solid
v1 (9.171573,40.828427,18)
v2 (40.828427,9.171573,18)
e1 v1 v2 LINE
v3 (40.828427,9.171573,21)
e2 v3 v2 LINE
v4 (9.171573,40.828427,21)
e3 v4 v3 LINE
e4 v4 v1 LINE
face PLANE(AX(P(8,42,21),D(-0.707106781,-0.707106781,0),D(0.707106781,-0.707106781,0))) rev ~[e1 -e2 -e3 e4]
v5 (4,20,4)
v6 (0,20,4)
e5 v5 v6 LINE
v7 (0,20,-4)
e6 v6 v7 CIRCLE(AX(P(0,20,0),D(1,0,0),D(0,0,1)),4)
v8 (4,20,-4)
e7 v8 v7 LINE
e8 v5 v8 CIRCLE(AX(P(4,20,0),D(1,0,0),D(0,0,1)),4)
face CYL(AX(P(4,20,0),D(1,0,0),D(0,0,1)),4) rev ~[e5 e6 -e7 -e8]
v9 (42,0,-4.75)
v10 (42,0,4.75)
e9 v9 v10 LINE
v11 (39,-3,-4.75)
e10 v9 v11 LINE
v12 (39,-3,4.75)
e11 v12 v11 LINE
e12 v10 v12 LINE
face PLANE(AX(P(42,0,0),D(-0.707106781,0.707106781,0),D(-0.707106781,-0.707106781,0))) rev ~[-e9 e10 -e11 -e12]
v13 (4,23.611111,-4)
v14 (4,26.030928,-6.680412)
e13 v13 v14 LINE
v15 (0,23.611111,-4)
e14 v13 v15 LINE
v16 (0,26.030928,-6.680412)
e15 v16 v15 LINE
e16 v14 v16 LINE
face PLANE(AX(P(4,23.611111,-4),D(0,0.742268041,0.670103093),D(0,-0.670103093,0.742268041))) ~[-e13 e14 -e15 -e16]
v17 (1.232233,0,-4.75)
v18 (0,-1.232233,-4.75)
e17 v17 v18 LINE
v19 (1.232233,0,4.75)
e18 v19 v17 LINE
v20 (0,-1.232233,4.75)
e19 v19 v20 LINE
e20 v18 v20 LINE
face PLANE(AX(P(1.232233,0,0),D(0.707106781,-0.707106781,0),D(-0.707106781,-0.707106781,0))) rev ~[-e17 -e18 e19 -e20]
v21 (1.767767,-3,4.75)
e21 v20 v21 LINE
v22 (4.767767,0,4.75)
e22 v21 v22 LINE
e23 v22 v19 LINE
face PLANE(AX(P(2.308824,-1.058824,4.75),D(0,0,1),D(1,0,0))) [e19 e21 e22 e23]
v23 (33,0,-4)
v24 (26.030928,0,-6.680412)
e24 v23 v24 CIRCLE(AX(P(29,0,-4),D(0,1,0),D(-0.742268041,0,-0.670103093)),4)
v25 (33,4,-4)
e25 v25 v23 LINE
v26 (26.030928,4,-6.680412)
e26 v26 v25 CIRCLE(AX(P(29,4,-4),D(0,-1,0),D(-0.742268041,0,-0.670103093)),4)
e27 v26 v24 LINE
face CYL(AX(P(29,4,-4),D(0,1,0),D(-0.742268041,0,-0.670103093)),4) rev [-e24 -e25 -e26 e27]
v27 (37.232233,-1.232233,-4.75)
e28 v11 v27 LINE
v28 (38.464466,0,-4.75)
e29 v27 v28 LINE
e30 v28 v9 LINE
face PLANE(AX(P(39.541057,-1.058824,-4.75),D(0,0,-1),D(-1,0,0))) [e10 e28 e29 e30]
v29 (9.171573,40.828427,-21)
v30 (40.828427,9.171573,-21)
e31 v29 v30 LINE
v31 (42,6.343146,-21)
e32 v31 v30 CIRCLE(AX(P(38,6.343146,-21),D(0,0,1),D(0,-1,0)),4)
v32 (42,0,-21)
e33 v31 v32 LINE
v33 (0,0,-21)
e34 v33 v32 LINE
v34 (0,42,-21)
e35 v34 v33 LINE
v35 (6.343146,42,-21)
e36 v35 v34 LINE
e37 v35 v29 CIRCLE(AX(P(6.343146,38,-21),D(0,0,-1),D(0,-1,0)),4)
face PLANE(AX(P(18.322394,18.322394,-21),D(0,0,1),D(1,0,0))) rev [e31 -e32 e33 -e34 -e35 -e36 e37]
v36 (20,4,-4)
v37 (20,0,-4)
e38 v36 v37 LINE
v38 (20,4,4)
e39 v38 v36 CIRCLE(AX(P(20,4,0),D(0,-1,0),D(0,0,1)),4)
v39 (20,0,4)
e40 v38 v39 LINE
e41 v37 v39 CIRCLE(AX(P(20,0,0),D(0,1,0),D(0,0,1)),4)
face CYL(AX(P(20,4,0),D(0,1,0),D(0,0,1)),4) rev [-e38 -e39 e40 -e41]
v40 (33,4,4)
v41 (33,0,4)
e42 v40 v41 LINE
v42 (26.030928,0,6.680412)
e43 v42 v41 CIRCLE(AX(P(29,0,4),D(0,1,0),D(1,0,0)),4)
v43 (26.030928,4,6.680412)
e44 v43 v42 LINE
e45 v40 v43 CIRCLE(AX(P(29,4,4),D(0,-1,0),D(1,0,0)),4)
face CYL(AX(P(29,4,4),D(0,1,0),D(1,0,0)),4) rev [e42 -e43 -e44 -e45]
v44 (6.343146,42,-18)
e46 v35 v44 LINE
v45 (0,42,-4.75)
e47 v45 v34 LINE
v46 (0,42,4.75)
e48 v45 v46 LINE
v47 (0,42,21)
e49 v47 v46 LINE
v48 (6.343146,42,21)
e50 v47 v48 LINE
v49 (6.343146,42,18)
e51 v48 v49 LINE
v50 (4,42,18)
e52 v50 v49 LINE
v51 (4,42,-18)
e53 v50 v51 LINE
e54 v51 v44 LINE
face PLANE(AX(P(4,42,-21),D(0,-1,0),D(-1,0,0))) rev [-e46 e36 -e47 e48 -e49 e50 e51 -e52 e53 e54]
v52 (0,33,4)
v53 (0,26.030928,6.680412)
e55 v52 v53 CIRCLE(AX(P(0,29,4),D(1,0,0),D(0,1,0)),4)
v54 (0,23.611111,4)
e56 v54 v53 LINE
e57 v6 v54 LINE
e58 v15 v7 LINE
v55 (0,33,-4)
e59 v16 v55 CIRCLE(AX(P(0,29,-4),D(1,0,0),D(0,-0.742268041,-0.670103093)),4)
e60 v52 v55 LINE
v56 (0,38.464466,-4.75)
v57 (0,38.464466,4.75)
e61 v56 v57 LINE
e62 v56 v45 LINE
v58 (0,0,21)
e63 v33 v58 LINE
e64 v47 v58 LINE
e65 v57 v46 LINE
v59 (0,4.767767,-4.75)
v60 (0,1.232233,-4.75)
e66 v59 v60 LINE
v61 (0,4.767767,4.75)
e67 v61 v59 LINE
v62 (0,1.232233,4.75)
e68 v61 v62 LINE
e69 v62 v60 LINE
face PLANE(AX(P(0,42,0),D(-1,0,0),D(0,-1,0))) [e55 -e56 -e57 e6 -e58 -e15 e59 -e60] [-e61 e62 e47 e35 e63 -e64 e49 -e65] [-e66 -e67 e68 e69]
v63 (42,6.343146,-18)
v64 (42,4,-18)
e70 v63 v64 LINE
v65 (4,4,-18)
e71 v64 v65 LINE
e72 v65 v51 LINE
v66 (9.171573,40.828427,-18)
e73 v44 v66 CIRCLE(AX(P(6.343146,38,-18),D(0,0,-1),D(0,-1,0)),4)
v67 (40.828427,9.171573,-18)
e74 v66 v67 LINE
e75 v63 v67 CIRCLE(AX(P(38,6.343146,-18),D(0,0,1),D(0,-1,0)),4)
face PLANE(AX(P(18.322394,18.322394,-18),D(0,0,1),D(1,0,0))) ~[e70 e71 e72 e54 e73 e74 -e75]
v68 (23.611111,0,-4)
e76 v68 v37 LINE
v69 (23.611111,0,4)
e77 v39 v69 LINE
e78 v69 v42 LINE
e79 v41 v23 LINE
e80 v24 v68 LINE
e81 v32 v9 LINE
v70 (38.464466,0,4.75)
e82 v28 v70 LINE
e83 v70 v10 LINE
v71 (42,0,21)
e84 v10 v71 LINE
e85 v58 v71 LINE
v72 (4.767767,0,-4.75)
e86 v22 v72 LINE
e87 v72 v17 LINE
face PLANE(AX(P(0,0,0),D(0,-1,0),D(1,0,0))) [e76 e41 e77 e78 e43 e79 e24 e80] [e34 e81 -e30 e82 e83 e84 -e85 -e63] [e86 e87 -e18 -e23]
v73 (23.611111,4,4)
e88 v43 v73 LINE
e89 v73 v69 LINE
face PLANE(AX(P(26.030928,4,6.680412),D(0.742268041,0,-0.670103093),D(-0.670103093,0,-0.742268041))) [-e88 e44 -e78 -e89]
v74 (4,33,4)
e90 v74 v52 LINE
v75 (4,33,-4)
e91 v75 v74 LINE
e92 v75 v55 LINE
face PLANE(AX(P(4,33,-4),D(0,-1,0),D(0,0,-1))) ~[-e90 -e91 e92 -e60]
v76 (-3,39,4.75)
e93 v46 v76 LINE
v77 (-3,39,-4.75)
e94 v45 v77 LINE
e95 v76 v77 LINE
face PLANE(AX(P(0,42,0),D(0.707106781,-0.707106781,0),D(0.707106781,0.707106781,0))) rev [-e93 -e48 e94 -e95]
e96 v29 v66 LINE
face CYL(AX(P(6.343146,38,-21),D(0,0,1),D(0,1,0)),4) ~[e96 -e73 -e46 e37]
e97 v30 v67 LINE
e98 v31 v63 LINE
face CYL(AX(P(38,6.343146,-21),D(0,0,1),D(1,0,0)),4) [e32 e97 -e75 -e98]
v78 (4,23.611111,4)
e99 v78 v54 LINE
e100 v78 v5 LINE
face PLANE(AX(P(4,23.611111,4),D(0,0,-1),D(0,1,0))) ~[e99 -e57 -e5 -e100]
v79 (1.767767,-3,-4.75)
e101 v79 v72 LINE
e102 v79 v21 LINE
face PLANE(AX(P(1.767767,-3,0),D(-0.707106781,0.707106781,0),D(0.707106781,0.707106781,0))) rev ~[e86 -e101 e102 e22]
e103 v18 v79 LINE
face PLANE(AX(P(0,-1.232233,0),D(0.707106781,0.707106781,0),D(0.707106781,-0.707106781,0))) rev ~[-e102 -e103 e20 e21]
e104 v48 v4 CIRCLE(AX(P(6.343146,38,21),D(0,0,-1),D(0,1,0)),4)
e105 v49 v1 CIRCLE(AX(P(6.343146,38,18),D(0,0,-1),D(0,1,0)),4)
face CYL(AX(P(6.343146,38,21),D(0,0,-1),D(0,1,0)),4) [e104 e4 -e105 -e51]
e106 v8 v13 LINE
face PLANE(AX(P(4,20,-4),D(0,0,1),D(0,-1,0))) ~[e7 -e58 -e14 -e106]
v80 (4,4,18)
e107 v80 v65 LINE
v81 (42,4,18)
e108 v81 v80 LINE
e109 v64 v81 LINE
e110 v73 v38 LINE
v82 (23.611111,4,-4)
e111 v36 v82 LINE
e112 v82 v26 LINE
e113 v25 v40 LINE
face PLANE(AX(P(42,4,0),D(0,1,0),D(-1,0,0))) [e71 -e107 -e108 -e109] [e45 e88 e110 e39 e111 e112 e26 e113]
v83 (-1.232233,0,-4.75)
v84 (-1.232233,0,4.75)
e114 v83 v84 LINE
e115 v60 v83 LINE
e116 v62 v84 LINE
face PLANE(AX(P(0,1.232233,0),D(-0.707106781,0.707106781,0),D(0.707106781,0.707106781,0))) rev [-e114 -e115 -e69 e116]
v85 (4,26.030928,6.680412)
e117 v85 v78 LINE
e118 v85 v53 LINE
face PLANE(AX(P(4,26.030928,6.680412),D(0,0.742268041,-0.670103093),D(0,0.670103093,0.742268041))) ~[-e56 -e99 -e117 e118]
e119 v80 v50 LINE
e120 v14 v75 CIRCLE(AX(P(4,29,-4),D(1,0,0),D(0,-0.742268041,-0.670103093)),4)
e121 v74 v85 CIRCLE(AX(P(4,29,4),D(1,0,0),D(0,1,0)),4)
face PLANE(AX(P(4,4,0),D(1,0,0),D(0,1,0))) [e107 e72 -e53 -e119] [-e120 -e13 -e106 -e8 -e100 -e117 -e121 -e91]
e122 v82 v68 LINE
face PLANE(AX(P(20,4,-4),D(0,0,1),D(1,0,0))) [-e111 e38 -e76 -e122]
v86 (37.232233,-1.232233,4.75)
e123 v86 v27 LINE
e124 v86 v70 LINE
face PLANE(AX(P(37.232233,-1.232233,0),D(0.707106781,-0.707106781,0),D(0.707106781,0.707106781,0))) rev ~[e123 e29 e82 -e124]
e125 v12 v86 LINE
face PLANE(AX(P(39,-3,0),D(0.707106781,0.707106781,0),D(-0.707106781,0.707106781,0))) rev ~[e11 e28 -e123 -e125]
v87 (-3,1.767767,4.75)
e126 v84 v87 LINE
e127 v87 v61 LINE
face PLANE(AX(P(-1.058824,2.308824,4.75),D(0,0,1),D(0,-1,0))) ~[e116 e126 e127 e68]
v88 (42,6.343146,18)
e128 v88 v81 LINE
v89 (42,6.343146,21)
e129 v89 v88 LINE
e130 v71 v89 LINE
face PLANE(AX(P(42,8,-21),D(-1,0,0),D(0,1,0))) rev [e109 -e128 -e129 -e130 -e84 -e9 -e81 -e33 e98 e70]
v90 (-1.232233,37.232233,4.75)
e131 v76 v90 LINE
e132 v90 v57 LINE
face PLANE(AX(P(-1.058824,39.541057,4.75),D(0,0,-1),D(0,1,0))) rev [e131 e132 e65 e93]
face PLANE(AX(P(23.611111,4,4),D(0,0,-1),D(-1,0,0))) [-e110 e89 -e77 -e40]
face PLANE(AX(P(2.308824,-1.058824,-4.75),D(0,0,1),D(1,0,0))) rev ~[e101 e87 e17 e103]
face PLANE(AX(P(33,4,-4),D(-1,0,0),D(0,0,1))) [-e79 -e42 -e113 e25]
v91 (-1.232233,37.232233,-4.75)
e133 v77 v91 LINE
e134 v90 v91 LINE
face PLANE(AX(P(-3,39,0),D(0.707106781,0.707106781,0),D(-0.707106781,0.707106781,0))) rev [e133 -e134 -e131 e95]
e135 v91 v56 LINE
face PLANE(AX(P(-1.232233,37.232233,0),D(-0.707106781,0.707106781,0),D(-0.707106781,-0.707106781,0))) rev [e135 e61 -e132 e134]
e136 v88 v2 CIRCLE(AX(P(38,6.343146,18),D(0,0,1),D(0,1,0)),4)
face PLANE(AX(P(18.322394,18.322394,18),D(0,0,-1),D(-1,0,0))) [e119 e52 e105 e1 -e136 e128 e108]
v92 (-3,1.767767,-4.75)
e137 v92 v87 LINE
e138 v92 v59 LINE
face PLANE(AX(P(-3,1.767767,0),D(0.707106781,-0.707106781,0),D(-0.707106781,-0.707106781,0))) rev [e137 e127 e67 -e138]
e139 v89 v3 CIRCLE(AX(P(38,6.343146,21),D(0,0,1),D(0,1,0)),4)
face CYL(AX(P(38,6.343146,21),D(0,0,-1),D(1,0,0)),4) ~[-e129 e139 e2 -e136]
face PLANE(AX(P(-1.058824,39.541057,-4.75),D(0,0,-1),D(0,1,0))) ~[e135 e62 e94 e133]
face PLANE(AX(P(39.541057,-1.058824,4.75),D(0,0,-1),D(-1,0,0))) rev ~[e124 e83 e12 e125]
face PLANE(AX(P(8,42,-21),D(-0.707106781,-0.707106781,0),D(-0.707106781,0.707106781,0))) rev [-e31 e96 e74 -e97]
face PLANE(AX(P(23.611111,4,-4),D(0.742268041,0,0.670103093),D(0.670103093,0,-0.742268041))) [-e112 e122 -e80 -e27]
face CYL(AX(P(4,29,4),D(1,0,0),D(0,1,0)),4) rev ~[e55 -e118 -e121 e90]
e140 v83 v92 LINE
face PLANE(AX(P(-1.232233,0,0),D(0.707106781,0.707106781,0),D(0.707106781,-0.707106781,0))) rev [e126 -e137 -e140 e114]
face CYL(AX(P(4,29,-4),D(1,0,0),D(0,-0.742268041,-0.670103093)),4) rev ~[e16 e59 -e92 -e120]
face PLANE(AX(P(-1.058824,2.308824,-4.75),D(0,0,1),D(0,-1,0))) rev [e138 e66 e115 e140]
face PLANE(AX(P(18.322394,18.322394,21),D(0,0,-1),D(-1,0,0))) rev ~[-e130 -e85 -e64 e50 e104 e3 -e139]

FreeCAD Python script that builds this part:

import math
import FreeCAD as App
import Part
import Sketcher

V = App.Vector
Q = App.Units.Quantity


def edges_at(feature, points):
    """Names of the edges that pass closest to the given points."""
    edges = feature.Shape.Edges
    near = lambda p: min(range(len(edges)), key=lambda i: edges[i].distToShape(Part.Vertex(*p))[0])
    return sorted({f"Edge{near(p) + 1}" for p in points})


def add_polygon(sketch, points):
    """Adds a closed chain of lines whose ends are joined by coincident constraints."""
    first, n = sketch.GeometryCount, len(points)
    for a, b in zip(points, points[1:] + points[:1]):
        sketch.addGeometry(Part.LineSegment(App.Vector(*a, 0), App.Vector(*b, 0)), False)
    for i in range(n):
        sketch.addConstraint(Sketcher.Constraint("Coincident", first + i, 2, first + (i + 1) % n, 1))

doc = App.newDocument("Part")
body = doc.addObject("PartDesign::Body", "Body")

# Sketch on XY plane
sketch1 = body.newObject("Sketcher::SketchObject", "Sketch")
sketch1.AttachmentSupport = (doc.getObject("XY_Plane"), [""])
sketch1.MapMode = "FlatFace"
add_polygon(sketch1, [(0, 42), (0, 0), (42, 0), (42, 4), (4, 4), (4, 42)])  # lines 0-5
sketch1.addConstraint([
    Sketcher.Constraint("Vertical", 0),
    Sketcher.Constraint("Horizontal", 1),
    Sketcher.Constraint("Vertical", 2),
    Sketcher.Constraint("Horizontal", 3),
    Sketcher.Constraint("Vertical", 4),
    Sketcher.Constraint("Horizontal", 5),
    Sketcher.Constraint("Coincident", 0, 2, -1, 1),
    Sketcher.Constraint("Equal", 1, 0),
    Sketcher.Constraint("Equal", 5, 2),
    Sketcher.Constraint("DistanceX", 1, 1, 1, 2, 42.0),
    Sketcher.Constraint("DistanceX", 3, 2, 3, 1, 38.0),
])
pad1 = body.newObject("PartDesign::Pad", "Pad")
pad1.Profile = sketch1
pad1.Length = 42
pad1.Midplane = True

# Sketch on XY plane
sketch2 = body.newObject("Sketcher::SketchObject", "Sketch001")
sketch2.AttachmentSupport = (doc.getObject("XY_Plane"), [""])
sketch2.MapMode = "FlatFace"
sketch2.AttachmentOffset = App.Placement(V(0, 0, 21), App.Rotation())
add_polygon(sketch2, [(4, 4), (42, 4), (42, 8), (8, 42), (4, 42)])  # lines 0-4
sketch2.addConstraint([
    Sketcher.Constraint("Horizontal", 0),
    Sketcher.Constraint("Vertical", 1),
    Sketcher.Constraint("Horizontal", 3),
    Sketcher.Constraint("Vertical", 4),
    Sketcher.Constraint("Equal", 3, 1),
    Sketcher.Constraint("Equal", 0, 4),
    Sketcher.Constraint("DistanceX", 0, 1, 0, 2, 38.0),
    Sketcher.Constraint("DistanceX", 3, 2, 3, 1, 4.0),
    Sketcher.Constraint("DistanceX", -1, 1, 0, 2, 42.0),
    Sketcher.Constraint("DistanceY", -1, 1, 0, 2, 4.0),
])
pad2 = body.newObject("PartDesign::Pad", "Pad001")
pad2.Profile = sketch2
pad2.Length = 3
pad2.Reversed = True
doc.recompute()

fillet = body.newObject("PartDesign::Fillet", "Fillet")
fillet.Base = (pad2, edges_at(pad2, [(8, 42, 19.5), (42, 8, 19.5)]))
fillet.Radius = 4
doc.recompute()

mirrored = body.newObject("PartDesign::Mirrored", "Mirrored")
mirrored.Originals = [pad2]
mirrored.MirrorPlane = (doc.getObject("XY_Plane"), [""])
body.Tip = mirrored
doc.recompute()

fillet2 = body.newObject("PartDesign::Fillet", "Fillet001")
fillet2.Base = (mirrored, edges_at(mirrored, [(8, 42, -19.5), (42, 8, -19.5)]))
fillet2.Radius = 4

# Sketch on XZ plane
sketch3 = body.newObject("Sketcher::SketchObject", "Sketch002")
sketch3.AttachmentSupport = (doc.getObject("XZ_Plane"), [""])
sketch3.MapMode = "FlatFace"
sketch3.AttachmentOffset = App.Placement(V(0, 0, -4), App.Rotation())
sketch3.addGeometry([
    Part.LineSegment(V(23.6, -4, 0), V(20, -4, 0)),  # 0
    Part.ArcOfCircle(Part.Circle(V(20, 0, 0), V(0, 0, 1), 4), math.radians(90), math.radians(270)),  # 1
    Part.LineSegment(V(20, 4, 0), V(23.6, 4, 0)),  # 2
    Part.LineSegment(V(23.6, 4, 0), V(26, 6.7, 0)),  # 3
    Part.ArcOfCircle(Part.Circle(V(29, 4, 0), V(0, 0, 1), 4), math.radians(0), math.radians(138)),  # 4
    Part.LineSegment(V(33, 4, 0), V(33, -4, 0)),  # 5
    Part.ArcOfCircle(Part.Circle(V(29, -4, 0), V(0, 0, 1), 4), math.radians(-138), math.radians(0)),  # 6
    Part.LineSegment(V(26, -6.7, 0), V(23.6, -4, 0)),  # 7
], False)
sketch3.addConstraint([
    Sketcher.Constraint("Tangent", 0, 2, 1, 2),
    Sketcher.Constraint("Tangent", 1, 1, 2, 1),
    Sketcher.Constraint("Coincident", 2, 2, 3, 1),
    Sketcher.Constraint("Tangent", 3, 2, 4, 2),
    Sketcher.Constraint("Tangent", 4, 1, 5, 1),
    Sketcher.Constraint("Tangent", 5, 2, 6, 2),
    Sketcher.Constraint("Tangent", 6, 1, 7, 1),
    Sketcher.Constraint("Coincident", 7, 2, 0, 1),
    Sketcher.Constraint("Horizontal", 0),
    Sketcher.Constraint("Horizontal", 2),
    Sketcher.Constraint("Vertical", 5),
    Sketcher.Constraint("Equal", 1, 4),
    Sketcher.Constraint("Equal", 4, 6),
    Sketcher.Constraint("Symmetric", 3, 2, 6, 1, -1),
    Sketcher.Constraint("PointOnObject", 1, 3, -1),
    Sketcher.Constraint("Horizontal", 6, 3, 0, 2),
    Sketcher.Constraint("Radius", 1, 4.0),
    Sketcher.Constraint("DistanceX", -1, 1, 1, 3, 20.0),
    Sketcher.Constraint("DistanceX", -1, 1, 4, 3, 29.0),
    Sketcher.Constraint("DistanceX", 0, 2, 0, 1, 3.611111),
])
pocket1 = body.newObject("PartDesign::Pocket", "Pocket")
pocket1.Profile = sketch3
pocket1.Type = "ThroughAll"
pocket1.Reversed = True

# Sketch on XY plane
sketch4 = body.newObject("Sketcher::SketchObject", "Sketch003")
sketch4.AttachmentSupport = (doc.getObject("XY_Plane"), [""])
sketch4.MapMode = "FlatFace"
add_polygon(sketch4, [(1.2, 0), (0, -1.2), (1.8, -3), (4.8, 0)])  # lines 0-3
add_polygon(sketch4, [(39, -3), (42, 0), (38.5, 0), (37.2, -1.2)])  # lines 4-7
sketch4.addConstraint([
    Sketcher.Constraint("Horizontal", 3),
    Sketcher.Constraint("Horizontal", 5),
    Sketcher.Constraint("PointOnObject", 0, 2, -2),
    Sketcher.Constraint("PointOnObject", 2, 2, -1),
    Sketcher.Constraint("PointOnObject", 4, 2, -1),
    Sketcher.Constraint("Perpendicular", 0, 1),
    Sketcher.Constraint("Perpendicular", 1, 2),
    Sketcher.Constraint("Parallel", 2, 4),
    Sketcher.Constraint("Parallel", 4, 6),
    Sketcher.Constraint("Perpendicular", 6, 7),
    Sketcher.Constraint("Horizontal", 0, 2, 6, 2),
    Sketcher.Constraint("Horizontal", 1, 2, 7, 2),
    Sketcher.Constraint("Angle", 0, Q("-135 deg")),
    Sketcher.Constraint("DistanceY", 1, 2, -1, 1, 3.0),
    Sketcher.Constraint("DistanceX", -1, 1, 4, 2, 42.0),
    Sketcher.Constraint("Distance", 1, 2.5),
])
pad3 = body.newObject("PartDesign::Pad", "Pad002")
pad3.Profile = sketch4
pad3.Length = 9.5
pad3.Midplane = True
doc.recompute()

datumplane = body.newObject("PartDesign::Plane", "DatumPlane")
datumplane.Placement = App.Placement(V(0, 0, 0), App.Rotation(V(0.707106781, 0.707106781, 0), V(0, 0, -1), V(-0.707106781, 0.707106781, 0), "ZXY"))
mirrored2 = body.newObject("PartDesign::Mirrored", "Mirrored001")
mirrored2.Originals = [pocket1, pad3]
mirrored2.MirrorPlane = (datumplane, [""])
body.Tip = mirrored2

doc.recompute()
